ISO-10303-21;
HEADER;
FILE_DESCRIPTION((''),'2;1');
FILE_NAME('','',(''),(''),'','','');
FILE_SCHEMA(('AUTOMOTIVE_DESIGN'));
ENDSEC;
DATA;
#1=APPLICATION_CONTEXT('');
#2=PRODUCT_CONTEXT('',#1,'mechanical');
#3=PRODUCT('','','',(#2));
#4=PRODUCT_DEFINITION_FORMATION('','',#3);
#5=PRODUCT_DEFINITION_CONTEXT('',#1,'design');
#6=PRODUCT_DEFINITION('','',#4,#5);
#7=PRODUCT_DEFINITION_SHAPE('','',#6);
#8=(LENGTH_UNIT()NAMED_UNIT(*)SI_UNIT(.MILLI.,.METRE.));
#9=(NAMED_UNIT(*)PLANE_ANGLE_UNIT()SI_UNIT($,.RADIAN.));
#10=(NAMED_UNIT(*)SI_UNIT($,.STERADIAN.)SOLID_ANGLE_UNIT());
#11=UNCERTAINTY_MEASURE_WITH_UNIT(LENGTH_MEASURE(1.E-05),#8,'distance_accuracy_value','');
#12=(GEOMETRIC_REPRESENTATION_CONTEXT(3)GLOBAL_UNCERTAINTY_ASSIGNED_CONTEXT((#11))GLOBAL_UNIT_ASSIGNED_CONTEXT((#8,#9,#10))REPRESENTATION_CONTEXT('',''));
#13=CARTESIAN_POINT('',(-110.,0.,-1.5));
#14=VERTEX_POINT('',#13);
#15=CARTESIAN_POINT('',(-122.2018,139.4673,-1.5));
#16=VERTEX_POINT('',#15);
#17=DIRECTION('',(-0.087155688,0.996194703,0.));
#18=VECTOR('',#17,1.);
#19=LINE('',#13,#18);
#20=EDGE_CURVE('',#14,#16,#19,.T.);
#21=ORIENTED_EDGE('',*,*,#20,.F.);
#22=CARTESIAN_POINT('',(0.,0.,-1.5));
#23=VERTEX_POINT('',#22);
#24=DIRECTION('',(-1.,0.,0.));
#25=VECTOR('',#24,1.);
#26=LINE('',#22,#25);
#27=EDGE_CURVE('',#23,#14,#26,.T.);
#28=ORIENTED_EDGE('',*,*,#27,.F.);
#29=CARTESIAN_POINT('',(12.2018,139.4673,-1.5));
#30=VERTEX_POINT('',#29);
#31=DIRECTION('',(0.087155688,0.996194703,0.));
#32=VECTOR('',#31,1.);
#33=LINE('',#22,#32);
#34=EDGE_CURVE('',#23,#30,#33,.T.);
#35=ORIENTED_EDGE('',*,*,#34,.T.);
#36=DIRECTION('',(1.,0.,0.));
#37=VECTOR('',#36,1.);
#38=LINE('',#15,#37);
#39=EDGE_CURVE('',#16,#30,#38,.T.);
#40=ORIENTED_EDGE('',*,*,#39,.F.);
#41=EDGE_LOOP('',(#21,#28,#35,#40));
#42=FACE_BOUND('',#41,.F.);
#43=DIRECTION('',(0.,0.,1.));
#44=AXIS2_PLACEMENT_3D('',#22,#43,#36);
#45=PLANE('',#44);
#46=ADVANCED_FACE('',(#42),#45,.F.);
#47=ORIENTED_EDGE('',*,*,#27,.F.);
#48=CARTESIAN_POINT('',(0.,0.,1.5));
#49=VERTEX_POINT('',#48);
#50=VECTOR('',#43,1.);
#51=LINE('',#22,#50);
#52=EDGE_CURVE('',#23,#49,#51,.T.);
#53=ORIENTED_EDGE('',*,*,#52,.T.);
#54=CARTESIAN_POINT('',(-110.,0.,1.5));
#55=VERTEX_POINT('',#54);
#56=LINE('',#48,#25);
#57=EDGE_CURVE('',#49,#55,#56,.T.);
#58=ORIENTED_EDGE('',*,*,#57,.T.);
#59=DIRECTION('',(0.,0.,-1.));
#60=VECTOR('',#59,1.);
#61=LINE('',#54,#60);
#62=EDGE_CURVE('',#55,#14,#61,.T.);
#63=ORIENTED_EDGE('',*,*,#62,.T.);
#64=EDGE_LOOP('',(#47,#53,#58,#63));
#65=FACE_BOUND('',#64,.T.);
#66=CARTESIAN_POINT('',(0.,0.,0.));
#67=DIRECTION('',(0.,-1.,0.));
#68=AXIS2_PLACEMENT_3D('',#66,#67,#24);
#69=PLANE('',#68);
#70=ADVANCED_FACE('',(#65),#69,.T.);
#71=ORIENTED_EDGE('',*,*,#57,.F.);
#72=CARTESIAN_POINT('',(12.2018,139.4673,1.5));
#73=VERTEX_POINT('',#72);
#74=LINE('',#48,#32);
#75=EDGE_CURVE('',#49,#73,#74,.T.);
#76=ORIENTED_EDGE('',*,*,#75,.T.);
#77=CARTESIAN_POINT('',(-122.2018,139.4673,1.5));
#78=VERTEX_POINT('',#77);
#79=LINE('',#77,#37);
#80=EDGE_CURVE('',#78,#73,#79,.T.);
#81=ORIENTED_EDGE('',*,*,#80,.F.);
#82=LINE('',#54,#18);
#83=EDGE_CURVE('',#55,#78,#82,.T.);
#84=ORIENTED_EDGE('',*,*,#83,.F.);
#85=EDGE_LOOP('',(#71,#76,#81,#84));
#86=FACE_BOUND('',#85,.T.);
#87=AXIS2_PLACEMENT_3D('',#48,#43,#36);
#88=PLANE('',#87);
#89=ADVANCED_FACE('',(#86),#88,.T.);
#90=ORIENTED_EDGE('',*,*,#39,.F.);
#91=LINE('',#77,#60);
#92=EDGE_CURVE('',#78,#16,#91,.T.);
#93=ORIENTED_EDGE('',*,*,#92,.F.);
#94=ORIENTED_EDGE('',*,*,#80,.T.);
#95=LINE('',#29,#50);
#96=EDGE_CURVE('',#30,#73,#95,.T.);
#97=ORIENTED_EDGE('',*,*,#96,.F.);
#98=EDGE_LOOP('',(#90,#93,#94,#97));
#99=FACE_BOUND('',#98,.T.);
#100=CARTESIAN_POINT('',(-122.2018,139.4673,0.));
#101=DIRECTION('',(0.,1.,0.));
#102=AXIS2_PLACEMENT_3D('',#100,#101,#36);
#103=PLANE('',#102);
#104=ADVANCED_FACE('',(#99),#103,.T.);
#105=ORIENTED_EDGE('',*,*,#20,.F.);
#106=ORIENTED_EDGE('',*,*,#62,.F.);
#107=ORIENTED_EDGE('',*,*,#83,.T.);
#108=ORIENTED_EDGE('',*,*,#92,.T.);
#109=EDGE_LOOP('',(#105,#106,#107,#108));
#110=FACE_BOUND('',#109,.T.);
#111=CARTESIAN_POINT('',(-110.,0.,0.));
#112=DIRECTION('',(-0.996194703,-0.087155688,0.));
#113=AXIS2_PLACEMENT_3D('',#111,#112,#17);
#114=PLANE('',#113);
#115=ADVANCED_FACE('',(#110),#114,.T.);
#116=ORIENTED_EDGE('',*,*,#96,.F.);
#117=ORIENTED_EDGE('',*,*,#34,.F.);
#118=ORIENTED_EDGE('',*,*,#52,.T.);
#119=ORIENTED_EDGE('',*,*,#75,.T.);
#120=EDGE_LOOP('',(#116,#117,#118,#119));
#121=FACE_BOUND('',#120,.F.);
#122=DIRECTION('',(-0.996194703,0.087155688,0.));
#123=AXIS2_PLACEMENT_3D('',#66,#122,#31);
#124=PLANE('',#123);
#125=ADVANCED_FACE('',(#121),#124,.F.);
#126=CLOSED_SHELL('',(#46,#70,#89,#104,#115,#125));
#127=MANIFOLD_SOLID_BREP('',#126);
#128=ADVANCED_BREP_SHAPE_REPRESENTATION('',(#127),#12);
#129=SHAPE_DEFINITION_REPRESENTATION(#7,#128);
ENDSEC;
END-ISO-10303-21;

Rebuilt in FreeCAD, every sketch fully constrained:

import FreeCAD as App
import Part
import Sketcher
from FreeCAD import Vector
Q = App.Units.Quantity


def add_polygon(sketch, points):
    """Adds a closed chain of lines whose ends are joined by coincident constraints."""
    first, n = sketch.GeometryCount, len(points)
    for a, b in zip(points, points[1:] + points[:1]):
        sketch.addGeometry(Part.LineSegment(App.Vector(*a, 0), App.Vector(*b, 0)), False)
    for i in range(n):
        sketch.addConstraint(Sketcher.Constraint("Coincident", first + i, 2, first + (i + 1) % n, 1))

doc = App.newDocument("Part")
body = doc.addObject("PartDesign::Body", "Body")

# Sketch on XY plane
sketch1 = doc.addObject("Sketcher::SketchObject", "Sketch")
body.addObject(sketch1)
sketch1.AttachmentSupport = (doc.XY_Plane, [""])
sketch1.MapMode = "FlatFace"
add_polygon(sketch1, [(-110, 0), (0, 0), (12, 139), (-122, 139)])  # lines 0-3
sketch1.addConstraint(Sketcher.Constraint("Horizontal", 0))
sketch1.addConstraint(Sketcher.Constraint("Horizontal", 2))
sketch1.addConstraint(Sketcher.Constraint("Coincident", 0, 2, -1, 1))
sketch1.addConstraint(Sketcher.Constraint("Equal", 1, 3))
sketch1.addConstraint(Sketcher.Constraint("DistanceX", 0, 1, 0, 2, Q("110 mm")))
sketch1.addConstraint(Sketcher.Constraint("Angle", 1, Q("85 deg")))
sketch1.addConstraint(Sketcher.Constraint("Distance", 1, Q("140 mm")))
pad1 = doc.addObject("PartDesign::Pad", "Pad")
body.addObject(pad1)
pad1.Profile = sketch1
pad1.Length = 3
pad1.Midplane = True

doc.recompute()
